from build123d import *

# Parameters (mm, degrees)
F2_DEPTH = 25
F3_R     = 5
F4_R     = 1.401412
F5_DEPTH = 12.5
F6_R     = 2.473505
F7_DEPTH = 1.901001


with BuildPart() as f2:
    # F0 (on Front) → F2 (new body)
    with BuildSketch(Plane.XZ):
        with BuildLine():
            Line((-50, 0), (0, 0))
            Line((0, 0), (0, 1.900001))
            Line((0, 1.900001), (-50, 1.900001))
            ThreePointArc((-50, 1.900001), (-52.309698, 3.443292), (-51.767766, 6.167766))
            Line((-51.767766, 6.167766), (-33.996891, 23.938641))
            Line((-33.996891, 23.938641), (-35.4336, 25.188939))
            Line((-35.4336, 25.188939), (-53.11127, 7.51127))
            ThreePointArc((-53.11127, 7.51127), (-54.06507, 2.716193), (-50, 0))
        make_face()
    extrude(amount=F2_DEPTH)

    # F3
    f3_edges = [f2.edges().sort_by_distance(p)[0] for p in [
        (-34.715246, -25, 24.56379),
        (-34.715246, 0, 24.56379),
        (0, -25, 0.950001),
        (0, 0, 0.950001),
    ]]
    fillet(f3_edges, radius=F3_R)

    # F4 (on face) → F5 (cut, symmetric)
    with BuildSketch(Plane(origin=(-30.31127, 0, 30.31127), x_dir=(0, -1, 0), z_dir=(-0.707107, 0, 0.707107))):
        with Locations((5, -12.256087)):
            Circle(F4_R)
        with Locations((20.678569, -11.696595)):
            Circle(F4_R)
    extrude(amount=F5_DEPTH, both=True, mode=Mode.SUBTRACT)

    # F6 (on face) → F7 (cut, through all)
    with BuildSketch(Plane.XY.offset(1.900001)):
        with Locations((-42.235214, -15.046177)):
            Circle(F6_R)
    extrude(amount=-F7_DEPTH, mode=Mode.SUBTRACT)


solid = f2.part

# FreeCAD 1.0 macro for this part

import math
import FreeCAD as App
import Part
import Sketcher

V = App.Vector
Q = App.Units.Quantity


def edges_at(feature, points):
    """Names of the edges that pass closest to the given points."""
    edges = feature.Shape.Edges
    near = lambda p: min(range(len(edges)), key=lambda i: edges[i].distToShape(Part.Vertex(*p))[0])
    return sorted({f"Edge{near(p) + 1}" for p in points})

doc = App.newDocument("Part")
body = doc.addObject("PartDesign::Body", "Body")

# Sketch on XZ plane
sketch1 = body.newObject("Sketcher::SketchObject", "Sketch")
sketch1.AttachmentSupport = (doc.getObject("XZ_Plane"), [""])
sketch1.MapMode = "FlatFace"
sketch1.addGeometry(Part.LineSegment(V(-50, 0, 0), V(0, 0, 0)), False)
sketch1.addGeometry(Part.LineSegment(V(0, 0, 0), V(0, 1.9, 0)), False)
sketch1.addGeometry(Part.LineSegment(V(0, 1.9, 0), V(-50, 1.9, 0)), False)
sketch1.addGeometry(Part.ArcOfCircle(Part.Circle(V(-50, 4.4, 0), V(0, 0, 1), 2.5), math.radians(135), math.radians(270)), False)
sketch1.addGeometry(Part.LineSegment(V(-51.8, 6.2, 0), V(-34, 23.9, 0)), False)
sketch1.addGeometry(Part.LineSegment(V(-34, 23.9, 0), V(-35.4, 25.2, 0)), False)
sketch1.addGeometry(Part.LineSegment(V(-35.4, 25.2, 0), V(-53.1, 7.5, 0)), False)
sketch1.addGeometry(Part.ArcOfCircle(Part.Circle(V(-50, 4.4, 0), V(0, 0, 1), 4.4), math.radians(135), math.radians(270)), False)
sketch1.addConstraint(Sketcher.Constraint("Coincident", 0, 2, 1, 1))
sketch1.addConstraint(Sketcher.Constraint("Coincident", 1, 2, 2, 1))
sketch1.addConstraint(Sketcher.Constraint("Tangent", 2, 2, 3, 2))
sketch1.addConstraint(Sketcher.Constraint("Tangent", 3, 1, 4, 1))
sketch1.addConstraint(Sketcher.Constraint("Coincident", 4, 2, 5, 1))
sketch1.addConstraint(Sketcher.Constraint("Coincident", 5, 2, 6, 1))
sketch1.addConstraint(Sketcher.Constraint("Tangent", 6, 2, 7, 1))
sketch1.addConstraint(Sketcher.Constraint("Tangent", 7, 2, 0, 1))
sketch1.addConstraint(Sketcher.Constraint("Horizontal", 0))
sketch1.addConstraint(Sketcher.Constraint("Vertical", 1))
sketch1.addConstraint(Sketcher.Constraint("Horizontal", 2))
sketch1.addConstraint(Sketcher.Constraint("Coincident", 0, 2, -1, 1))
sketch1.addConstraint(Sketcher.Constraint("Coincident", 7, 3, 3, 3))
sketch1.addConstraint(Sketcher.Constraint("Parallel", 4, 6))
sketch1.addConstraint(Sketcher.Constraint("Radius", 3, 2.499999))
sketch1.addConstraint(Sketcher.Constraint("Radius", 7, 4.4))
sketch1.addConstraint(Sketcher.Constraint("DistanceX", 0, 1, 0, 2, 50.0))
sketch1.addConstraint(Sketcher.Constraint("Angle", 4, Q("45 deg")))
sketch1.addConstraint(Sketcher.Constraint("Distance", 6, 25.0))
sketch1.addConstraint(Sketcher.Constraint("DistanceY", 4, 2, 5, 2, 1.250298))
pad1 = body.newObject("PartDesign::Pad", "Pad")
pad1.Profile = sketch1
pad1.Length = 25
doc.recompute()

fillet = body.newObject("PartDesign::Fillet", "Fillet")
fillet.Base = (pad1, edges_at(pad1, [
    (-34.715, -25, 24.564),
    (-34.715, 0, 24.564),
    (0, -25, 0.95),
    (0, 0, 0.95),
]))
fillet.Radius = 5

# Sketch on an angled plane
sketch2 = body.newObject("Sketcher::SketchObject", "Sketch001")
sketch2.Placement = App.Placement(V(-30.31127, 0, 30.31127), App.Rotation(V(0, -1, 0), V(0.707106781, 0, 0.707106781), V(-0.707106781, 0, 0.707106781), "ZXY"))
sketch2.addGeometry(Part.Circle(V(5, -12.3, 0), V(0, 0, 1), 1.4), False)
sketch2.addGeometry(Part.Circle(V(20.7, -11.7, 0), V(0, 0, 1), 1.4), False)
sketch2.addConstraint(Sketcher.Constraint("Equal", 0, 1))
sketch2.addConstraint(Sketcher.Constraint("DistanceX", -1, 1, 0, 3, 5.0))
sketch2.addConstraint(Sketcher.Constraint("Diameter", 0, 2.802824))
sketch2.addConstraint(Sketcher.Constraint("DistanceX", -1, 1, 1, 3, 20.678569))
sketch2.addConstraint(Sketcher.Constraint("DistanceY", 0, 3, -1, 1, 12.256087))
sketch2.addConstraint(Sketcher.Constraint("DistanceY", 1, 3, -1, 1, 11.696595))
pocket1 = body.newObject("PartDesign::Pocket", "Pocket")
pocket1.Profile = sketch2
pocket1.Length = 25
pocket1.Midplane = True

# Sketch on XY plane
sketch3 = body.newObject("Sketcher::SketchObject", "Sketch002")
sketch3.AttachmentSupport = (doc.getObject("XY_Plane"), [""])
sketch3.MapMode = "FlatFace"
sketch3.AttachmentOffset = App.Placement(V(0, 0, 1.900001), App.Rotation())
sketch3.addGeometry(Part.Circle(V(-42.2, -15, 0), V(0, 0, 1), 2.5), False)
sketch3.addConstraint(Sketcher.Constraint("Diameter", 0, 4.94701))
sketch3.addConstraint(Sketcher.Constraint("DistanceX", 0, 3, -1, 1, 42.235214))
sketch3.addConstraint(Sketcher.Constraint("DistanceY", 0, 3, -1, 1, 15.046177))
pocket2 = body.newObject("PartDesign::Pocket", "Pocket001")
pocket2.Profile = sketch3
pocket2.Type = "ThroughAll"

doc.recompute()
